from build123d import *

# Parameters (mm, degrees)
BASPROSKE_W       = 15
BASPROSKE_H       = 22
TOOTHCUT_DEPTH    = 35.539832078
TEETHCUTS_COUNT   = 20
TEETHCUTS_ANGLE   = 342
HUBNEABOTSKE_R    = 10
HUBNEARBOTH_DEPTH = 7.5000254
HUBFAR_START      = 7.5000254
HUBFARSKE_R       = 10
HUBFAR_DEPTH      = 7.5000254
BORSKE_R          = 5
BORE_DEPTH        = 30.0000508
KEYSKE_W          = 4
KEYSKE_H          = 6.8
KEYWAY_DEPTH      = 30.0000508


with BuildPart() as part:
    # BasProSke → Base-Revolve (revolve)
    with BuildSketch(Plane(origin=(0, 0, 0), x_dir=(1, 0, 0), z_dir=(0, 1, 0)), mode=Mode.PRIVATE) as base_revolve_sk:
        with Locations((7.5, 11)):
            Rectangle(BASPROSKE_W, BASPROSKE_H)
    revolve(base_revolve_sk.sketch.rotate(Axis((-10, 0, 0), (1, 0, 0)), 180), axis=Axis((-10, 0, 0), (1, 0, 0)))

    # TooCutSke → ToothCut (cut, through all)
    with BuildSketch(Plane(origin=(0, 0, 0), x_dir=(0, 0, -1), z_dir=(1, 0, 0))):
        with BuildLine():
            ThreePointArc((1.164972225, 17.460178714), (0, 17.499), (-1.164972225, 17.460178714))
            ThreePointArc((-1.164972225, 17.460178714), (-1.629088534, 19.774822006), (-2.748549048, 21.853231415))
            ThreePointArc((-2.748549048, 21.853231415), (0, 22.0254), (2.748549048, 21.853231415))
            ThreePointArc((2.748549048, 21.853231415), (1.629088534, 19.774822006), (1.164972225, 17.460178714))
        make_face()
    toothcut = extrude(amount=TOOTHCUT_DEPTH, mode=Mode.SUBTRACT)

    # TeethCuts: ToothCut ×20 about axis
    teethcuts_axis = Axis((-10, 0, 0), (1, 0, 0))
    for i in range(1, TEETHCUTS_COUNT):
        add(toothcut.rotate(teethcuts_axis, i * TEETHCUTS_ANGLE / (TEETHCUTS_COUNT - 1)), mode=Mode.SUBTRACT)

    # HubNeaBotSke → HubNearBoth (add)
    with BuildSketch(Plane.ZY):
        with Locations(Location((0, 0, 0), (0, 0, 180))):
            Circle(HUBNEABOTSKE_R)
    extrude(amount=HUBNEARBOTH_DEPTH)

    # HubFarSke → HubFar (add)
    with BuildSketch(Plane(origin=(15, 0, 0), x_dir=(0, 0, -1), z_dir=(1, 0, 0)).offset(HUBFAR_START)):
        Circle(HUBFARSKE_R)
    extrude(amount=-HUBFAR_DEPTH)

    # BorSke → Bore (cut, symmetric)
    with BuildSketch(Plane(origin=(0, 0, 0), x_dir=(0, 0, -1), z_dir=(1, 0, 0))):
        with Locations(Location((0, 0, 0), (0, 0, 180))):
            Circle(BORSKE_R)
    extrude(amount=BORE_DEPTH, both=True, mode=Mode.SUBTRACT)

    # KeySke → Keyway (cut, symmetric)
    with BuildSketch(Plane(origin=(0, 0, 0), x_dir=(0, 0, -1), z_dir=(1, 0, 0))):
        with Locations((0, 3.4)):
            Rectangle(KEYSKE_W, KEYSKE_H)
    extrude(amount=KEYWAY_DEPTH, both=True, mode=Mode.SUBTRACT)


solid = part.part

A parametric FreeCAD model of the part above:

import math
import FreeCAD as App
import Part
import Sketcher
from FreeCAD import Vector
Q = App.Units.Quantity


def add_polygon(sketch, points):
    """Adds a closed chain of lines whose ends are joined by coincident constraints."""
    first, n = sketch.GeometryCount, len(points)
    for a, b in zip(points, points[1:] + points[:1]):
        sketch.addGeometry(Part.LineSegment(App.Vector(*a, 0), App.Vector(*b, 0)), False)
    for i in range(n):
        sketch.addConstraint(Sketcher.Constraint("Coincident", first + i, 2, first + (i + 1) % n, 1))

doc = App.newDocument("Part")
body = doc.addObject("PartDesign::Body", "Body")

# Sketch on XZ plane
sketch1 = doc.addObject("Sketcher::SketchObject", "Sketch")
body.addObject(sketch1)
sketch1.AttachmentSupport = (doc.XZ_Plane, [""])
sketch1.MapMode = "FlatFace"
add_polygon(sketch1, [(0, -22), (0, 0), (15, 0), (15, -22)])  # lines 0-3
sketch1.addConstraint(Sketcher.Constraint("Vertical", 0))
sketch1.addConstraint(Sketcher.Constraint("Horizontal", 1))
sketch1.addConstraint(Sketcher.Constraint("Vertical", 2))
sketch1.addConstraint(Sketcher.Constraint("Horizontal", 3))
sketch1.addConstraint(Sketcher.Constraint("Coincident", 0, 2, -1, 1))
sketch1.addConstraint(Sketcher.Constraint("DistanceX", 1, 1, 1, 2, Q("15 mm")))
sketch1.addConstraint(Sketcher.Constraint("DistanceY", 0, 1, 0, 2, Q("22 mm")))
revolution = doc.addObject("PartDesign::Revolution", "Revolution")
body.addObject(revolution)
revolution.Profile = sketch1
revolution.ReferenceAxis = (sketch1, ["H_Axis"])
revolution.Angle = 360

# Sketch on YZ plane
sketch2 = doc.addObject("Sketcher::SketchObject", "Sketch001")
body.addObject(sketch2)
sketch2.AttachmentSupport = (doc.YZ_Plane, [""])
sketch2.MapMode = "FlatFace"
sketch2.addGeometry(Part.ArcOfCircle(Part.Circle(Vector(0, 0, 0), Vector(0, 0, 1), 17.5), math.radians(-3.82), math.radians(3.82)), False)
sketch2.addGeometry(Part.ArcOfCircle(Part.Circle(Vector(17.1, -9.2, 0), Vector(0, 0, 1), 8), math.radians(53), math.radians(87)), False)
sketch2.addGeometry(Part.ArcOfCircle(Part.Circle(Vector(0, 0, 0), Vector(0, 0, 1), 22), math.radians(-7.17), math.radians(7.17)), False)
sketch2.addGeometry(Part.ArcOfCircle(Part.Circle(Vector(17.1, 9.2, 0), Vector(0, 0, 1), 8), math.radians(-87), math.radians(-53)), False)
sketch2.addConstraint(Sketcher.Constraint("Coincident", 0, 1, 1, 2))
sketch2.addConstraint(Sketcher.Constraint("Coincident", 1, 1, 2, 1))
sketch2.addConstraint(Sketcher.Constraint("Coincident", 2, 2, 3, 2))
sketch2.addConstraint(Sketcher.Constraint("Coincident", 3, 1, 0, 2))
sketch2.addConstraint(Sketcher.Constraint("Coincident", 0, 3, -1, 1))
sketch2.addConstraint(Sketcher.Constraint("Coincident", 2, 3, -1, 1))
sketch2.addConstraint(Sketcher.Constraint("Equal", 1, 3))
sketch2.addConstraint(Sketcher.Constraint("Symmetric", 1, 3, 3, 3, -1))
sketch2.addConstraint(Sketcher.Constraint("Radius", 1, Q("8 mm")))
sketch2.addConstraint(Sketcher.Constraint("Radius", 0, Q("17.499 mm")))
sketch2.addConstraint(Sketcher.Constraint("Radius", 2, Q("22.0254 mm")))
sketch2.addConstraint(Sketcher.Constraint("DistanceY", 1, 1, 3, 3, Q("11.903602 mm")))
sketch2.addConstraint(Sketcher.Constraint("DistanceY", 1, 1, 2, 2, Q("5.497098 mm")))
pocket1 = doc.addObject("PartDesign::Pocket", "Pocket")
body.addObject(pocket1)
pocket1.Profile = sketch2
pocket1.Type = "ThroughAll"
pocket1.Reversed = True
doc.recompute()

polarpattern = doc.addObject("PartDesign::PolarPattern", "PolarPattern")
body.addObject(polarpattern)
polarpattern.Originals = [pocket1]
polarpattern.Axis = (doc.X_Axis, [""])
polarpattern.Angle = 360
polarpattern.Occurrences = 20
body.Tip = polarpattern

# Sketch on YZ plane
sketch3 = doc.addObject("Sketcher::SketchObject", "Sketch002")
body.addObject(sketch3)
sketch3.AttachmentSupport = (doc.YZ_Plane, [""])
sketch3.MapMode = "FlatFace"
sketch3.addGeometry(Part.Circle(Vector(0, 0, 0), Vector(0, 0, 1), 10), False)
sketch3.addConstraint(Sketcher.Constraint("Coincident", 0, 3, -1, 1))
sketch3.addConstraint(Sketcher.Constraint("Diameter", 0, Q("20 mm")))
pad1 = doc.addObject("PartDesign::Pad", "Pad")
body.addObject(pad1)
pad1.Profile = sketch3
pad1.Length = 7.500025
pad1.Reversed = True

# Sketch on YZ plane
sketch4 = doc.addObject("Sketcher::SketchObject", "Sketch003")
body.addObject(sketch4)
sketch4.AttachmentSupport = (doc.YZ_Plane, [""])
sketch4.MapMode = "FlatFace"
sketch4.AttachmentOffset = App.Placement(Vector(0, 0, 22.500025), App.Rotation())
sketch4.addGeometry(Part.Circle(Vector(0, 0, 0), Vector(0, 0, 1), 10), False)
sketch4.addConstraint(Sketcher.Constraint("Coincident", 0, 3, -1, 1))
sketch4.addConstraint(Sketcher.Constraint("Diameter", 0, Q("20 mm")))
pad2 = doc.addObject("PartDesign::Pad", "Pad001")
body.addObject(pad2)
pad2.Profile = sketch4
pad2.Length = 7.500025
pad2.Reversed = True

# Sketch on YZ plane
sketch5 = doc.addObject("Sketcher::SketchObject", "Sketch004")
body.addObject(sketch5)
sketch5.AttachmentSupport = (doc.YZ_Plane, [""])
sketch5.MapMode = "FlatFace"
sketch5.addGeometry(Part.Circle(Vector(0, 0, 0), Vector(0, 0, 1), 5), False)
sketch5.addConstraint(Sketcher.Constraint("Coincident", 0, 3, -1, 1))
sketch5.addConstraint(Sketcher.Constraint("Diameter", 0, Q("10 mm")))
pocket2 = doc.addObject("PartDesign::Pocket", "Pocket001")
body.addObject(pocket2)
pocket2.Profile = sketch5
pocket2.Length = 60.000102
pocket2.Midplane = True

# Sketch on YZ plane
sketch6 = doc.addObject("Sketcher::SketchObject", "Sketch005")
body.addObject(sketch6)
sketch6.AttachmentSupport = (doc.YZ_Plane, [""])
sketch6.MapMode = "FlatFace"
add_polygon(sketch6, [(6.8, 2), (0, 2), (0, -2), (6.8, -2)])  # lines 0-3
sketch6.addConstraint(Sketcher.Constraint("Horizontal", 0))
sketch6.addConstraint(Sketcher.Constraint("Vertical", 1))
sketch6.addConstraint(Sketcher.Constraint("Horizontal", 2))
sketch6.addConstraint(Sketcher.Constraint("Vertical", 3))
sketch6.addConstraint(Sketcher.Constraint("Symmetric", 0, 2, 1, 2, -1, 1))
sketch6.addConstraint(Sketcher.Constraint("DistanceY", 1, 2, 1, 1, Q("4 mm")))
sketch6.addConstraint(Sketcher.Constraint("DistanceX", 0, 2, 0, 1, Q("6.8 mm")))
pocket3 = doc.addObject("PartDesign::Pocket", "Pocket002")
body.addObject(pocket3)
pocket3.Profile = sketch6
pocket3.Length = 60.000102
pocket3.Midplane = True

doc.recompute()
